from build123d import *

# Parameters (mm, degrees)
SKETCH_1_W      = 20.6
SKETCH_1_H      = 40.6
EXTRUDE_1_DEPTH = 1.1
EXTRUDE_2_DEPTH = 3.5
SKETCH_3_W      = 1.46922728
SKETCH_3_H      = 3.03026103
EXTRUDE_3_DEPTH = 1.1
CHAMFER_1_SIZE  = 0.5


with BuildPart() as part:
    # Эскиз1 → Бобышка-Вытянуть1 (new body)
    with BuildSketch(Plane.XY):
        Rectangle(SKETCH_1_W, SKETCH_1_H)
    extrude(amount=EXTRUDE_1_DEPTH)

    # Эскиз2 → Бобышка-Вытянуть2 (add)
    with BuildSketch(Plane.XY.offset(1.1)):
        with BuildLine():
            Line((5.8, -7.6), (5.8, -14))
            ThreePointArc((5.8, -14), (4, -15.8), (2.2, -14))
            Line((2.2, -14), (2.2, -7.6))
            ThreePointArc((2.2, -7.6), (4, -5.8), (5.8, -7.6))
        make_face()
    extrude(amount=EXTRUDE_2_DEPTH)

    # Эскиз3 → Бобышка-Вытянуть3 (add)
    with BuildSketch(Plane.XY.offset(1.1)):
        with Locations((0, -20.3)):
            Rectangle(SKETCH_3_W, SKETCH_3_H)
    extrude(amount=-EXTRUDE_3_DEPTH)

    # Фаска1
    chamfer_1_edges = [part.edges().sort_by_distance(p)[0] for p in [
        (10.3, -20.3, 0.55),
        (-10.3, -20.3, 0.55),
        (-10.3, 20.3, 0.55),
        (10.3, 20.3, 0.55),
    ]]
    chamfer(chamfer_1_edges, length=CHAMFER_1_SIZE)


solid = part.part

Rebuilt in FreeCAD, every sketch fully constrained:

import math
import FreeCAD as App
import Part
import Sketcher


def edges_at(feature, points):
    """Names of the edges that pass closest to the given points."""
    edges = feature.Shape.Edges
    near = lambda p: min(range(len(edges)), key=lambda i: edges[i].distToShape(Part.Vertex(*p))[0])
    return sorted({f"Edge{near(p) + 1}" for p in points})

doc = App.newDocument("Part")
params = doc.addObject("Spreadsheet::Sheet", "Params")
for row, (alias, value) in enumerate([
    ("sketch1_width", "20.6 mm"),
    ("sketch1_height", "40.6 mm"),
    ("pad1_length", "1.1 mm"),
    ("sketch2_radius", "1.8 mm"),
    ("sketch2_height", "6.4 mm"),
    ("pad2_length", "3.5 mm"),
    ("pad3_length", "1.1 mm"),
    ("chamfer_size", "0.5 mm"),
], start=1):
    params.set(f"A{row}", alias)
    params.set(f"B{row}", "=" + value)
    params.setAlias(f"B{row}", alias)

body = doc.addObject("PartDesign::Body", "Body")

sketch1 = doc.addObject("Sketcher::SketchObject", "Sketch")
body.addObject(sketch1)
sketch1.AttachmentSupport = (doc.XY_Plane, [""])
sketch1.MapMode = "FlatFace"
sketch1.addGeometry([
    Part.LineSegment(App.Vector(-10, 20, 0), App.Vector(-10, -20, 0)),
    Part.LineSegment(App.Vector(-10, -20, 0), App.Vector(10, -20, 0)),
    Part.LineSegment(App.Vector(10, -20, 0), App.Vector(10, 20, 0)),
    Part.LineSegment(App.Vector(10, 20, 0), App.Vector(-10, 20, 0)),
], False)
sketch1.addConstraint([
    Sketcher.Constraint("Coincident", 0, 2, 1, 1),
    Sketcher.Constraint("Coincident", 1, 2, 2, 1),
    Sketcher.Constraint("Coincident", 2, 2, 3, 1),
    Sketcher.Constraint("Coincident", 3, 2, 0, 1),
    Sketcher.Constraint("Vertical", 0),
    Sketcher.Constraint("Horizontal", 1),
    Sketcher.Constraint("Vertical", 2),
    Sketcher.Constraint("Horizontal", 3),
    Sketcher.Constraint("Symmetric", 0, 2, 2, 2, -1, 1),
    Sketcher.Constraint("DistanceX", 1, 1, 1, 2, 20.6),
    Sketcher.Constraint("DistanceY", 0, 2, 0, 1, 40.6),
])
sketch1.setExpression("Constraints[9]", "Params.sketch1_width")
sketch1.setExpression("Constraints[10]", "Params.sketch1_height")
pad1 = doc.addObject("PartDesign::Pad", "Pad")
body.addObject(pad1)
pad1.Profile = sketch1
pad1.setExpression("Length", "Params.pad1_length")

sketch2 = doc.addObject("Sketcher::SketchObject", "Sketch001")
body.addObject(sketch2)
sketch2.AttachmentSupport = (doc.XY_Plane, [""])
sketch2.MapMode = "FlatFace"
sketch2.AttachmentOffset = App.Placement(App.Vector(0, 0, 1.1), App.Rotation())
sketch2.addGeometry([
    Part.LineSegment(App.Vector(5.8, -14, 0), App.Vector(5.8, -7.6, 0)),
    Part.ArcOfCircle(Part.Circle(App.Vector(4, -7.6, 0), App.Vector(0, 0, 1), 1.8), math.radians(0), math.radians(180)),
    Part.LineSegment(App.Vector(2.2, -7.6, 0), App.Vector(2.2, -14, 0)),
    Part.ArcOfCircle(Part.Circle(App.Vector(4, -14, 0), App.Vector(0, 0, 1), 1.8), math.radians(180), math.radians(360)),
], False)
sketch2.addConstraint([
    Sketcher.Constraint("Tangent", 0, 2, 1, 1),
    Sketcher.Constraint("Tangent", 1, 2, 2, 1),
    Sketcher.Constraint("Tangent", 2, 2, 3, 1),
    Sketcher.Constraint("Tangent", 3, 2, 0, 1),
    Sketcher.Constraint("Vertical", 0),
    Sketcher.Constraint("Vertical", 2),
    Sketcher.Constraint("Radius", 1, 1.8),
    Sketcher.Constraint("DistanceY", 0, 1, 0, 2, 6.4),
    Sketcher.Constraint("DistanceX", -1, 1, 1, 3, 4.0),
    Sketcher.Constraint("DistanceY", 3, 3, -1, 1, 14.0),
])
sketch2.setExpression("Constraints[6]", "Params.sketch2_radius")
sketch2.setExpression("Constraints[7]", "Params.sketch2_height")
pad2 = doc.addObject("PartDesign::Pad", "Pad001")
body.addObject(pad2)
pad2.Profile = sketch2
pad2.setExpression("Length", "Params.pad2_length")

sketch3 = doc.addObject("Sketcher::SketchObject", "Sketch002")
body.addObject(sketch3)
sketch3.AttachmentSupport = (doc.XY_Plane, [""])
sketch3.MapMode = "FlatFace"
sketch3.AttachmentOffset = App.Placement(App.Vector(0, 0, 1.1), App.Rotation())
sketch3.addGeometry([
    Part.LineSegment(App.Vector(-0.7, -18.8, 0), App.Vector(-0.7, -21.8, 0)),
    Part.LineSegment(App.Vector(-0.7, -21.8, 0), App.Vector(0.7, -21.8, 0)),
    Part.LineSegment(App.Vector(0.7, -21.8, 0), App.Vector(0.7, -18.8, 0)),
    Part.LineSegment(App.Vector(0.7, -18.8, 0), App.Vector(-0.7, -18.8, 0)),
], False)
sketch3.addConstraint([
    Sketcher.Constraint("Coincident", 0, 2, 1, 1),
    Sketcher.Constraint("Coincident", 1, 2, 2, 1),
    Sketcher.Constraint("Coincident", 2, 2, 3, 1),
    Sketcher.Constraint("Coincident", 3, 2, 0, 1),
    Sketcher.Constraint("Vertical", 0),
    Sketcher.Constraint("Horizontal", 1),
    Sketcher.Constraint("Vertical", 2),
    Sketcher.Constraint("Horizontal", 3),
    Sketcher.Constraint("DistanceY", 0, 2, 0, 1, 3.030261),
    Sketcher.Constraint("DistanceX", 1, 1, 1, 2, 1.469227),
    Sketcher.Constraint("DistanceY", 0, 2, -1, 1, 21.815131),
    Sketcher.Constraint("DistanceX", 0, 2, -1, 1, 0.734614),
])
pad3 = doc.addObject("PartDesign::Pad", "Pad002")
body.addObject(pad3)
pad3.Profile = sketch3
pad3.setExpression("Length", "Params.pad3_length")
pad3.Reversed = True
doc.recompute()

chamfer = doc.addObject("PartDesign::Chamfer", "Chamfer")
body.addObject(chamfer)
chamfer.Base = (pad3, edges_at(pad3, [
    (10.3, -20.3, 0.55),
    (-10.3, -20.3, 0.55),
    (-10.3, 20.3, 0.55),
    (10.3, 20.3, 0.55),
]))
chamfer.setExpression("Size", "Params.chamfer_size")

doc.recompute()
